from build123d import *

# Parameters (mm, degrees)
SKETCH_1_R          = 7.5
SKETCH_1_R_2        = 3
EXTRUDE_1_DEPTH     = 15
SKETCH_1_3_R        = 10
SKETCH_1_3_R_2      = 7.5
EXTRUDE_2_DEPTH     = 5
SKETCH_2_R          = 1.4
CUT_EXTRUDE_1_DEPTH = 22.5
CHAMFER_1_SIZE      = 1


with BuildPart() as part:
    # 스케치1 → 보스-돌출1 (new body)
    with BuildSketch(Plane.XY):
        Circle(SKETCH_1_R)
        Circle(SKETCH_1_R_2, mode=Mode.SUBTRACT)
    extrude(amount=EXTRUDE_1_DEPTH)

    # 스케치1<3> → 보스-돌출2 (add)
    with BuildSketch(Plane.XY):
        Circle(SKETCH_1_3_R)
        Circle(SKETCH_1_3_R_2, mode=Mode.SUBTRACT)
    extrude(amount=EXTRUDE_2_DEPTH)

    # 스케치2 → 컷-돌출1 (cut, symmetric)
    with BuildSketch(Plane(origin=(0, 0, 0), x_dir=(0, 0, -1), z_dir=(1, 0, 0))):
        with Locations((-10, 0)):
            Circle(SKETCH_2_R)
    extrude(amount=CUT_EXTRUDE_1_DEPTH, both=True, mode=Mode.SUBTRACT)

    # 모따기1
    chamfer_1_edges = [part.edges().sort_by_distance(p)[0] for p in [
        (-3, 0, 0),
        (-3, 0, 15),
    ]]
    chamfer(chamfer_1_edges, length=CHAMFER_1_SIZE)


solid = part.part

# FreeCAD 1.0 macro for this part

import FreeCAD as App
import Part
import Sketcher


def edges_at(feature, points):
    """Names of the edges that pass closest to the given points."""
    edges = feature.Shape.Edges
    near = lambda p: min(range(len(edges)), key=lambda i: edges[i].distToShape(Part.Vertex(*p))[0])
    return sorted({f"Edge{near(p) + 1}" for p in points})

doc = App.newDocument("Part")
body = doc.addObject("PartDesign::Body", "Body")

sketch1 = body.newObject("Sketcher::SketchObject", "Sketch")
sketch1.AttachmentSupport = (doc.getObject("XY_Plane"), [""])
sketch1.MapMode = "FlatFace"
sketch1.addGeometry([
    Part.Circle(App.Vector(0, 0, 0), App.Vector(0, 0, 1), 7.5),
    Part.Circle(App.Vector(0, 0, 0), App.Vector(0, 0, 1), 3),
], False)
sketch1.addConstraint([
    Sketcher.Constraint("Coincident", 0, 3, -1, 1),
    Sketcher.Constraint("Coincident", 1, 3, -1, 1),
    Sketcher.Constraint("Diameter", 0, 15.0),
    Sketcher.Constraint("Diameter", 1, 6.0),
])
pad1 = body.newObject("PartDesign::Pad", "Pad")
pad1.Profile = sketch1
pad1.Length = 15

sketch2 = body.newObject("Sketcher::SketchObject", "Sketch001")
sketch2.AttachmentSupport = (doc.getObject("XY_Plane"), [""])
sketch2.MapMode = "FlatFace"
sketch2.addGeometry([
    Part.Circle(App.Vector(0, 0, 0), App.Vector(0, 0, 1), 10),
    Part.Circle(App.Vector(0, 0, 0), App.Vector(0, 0, 1), 7.5),
], False)
sketch2.addConstraint([
    Sketcher.Constraint("Coincident", 0, 3, -1, 1),
    Sketcher.Constraint("Coincident", 1, 3, -1, 1),
    Sketcher.Constraint("Diameter", 0, 20.0),
    Sketcher.Constraint("Diameter", 1, 15.0),
])
pad2 = body.newObject("PartDesign::Pad", "Pad001")
pad2.Profile = sketch2
pad2.Length = 5

sketch3 = body.newObject("Sketcher::SketchObject", "Sketch002")
sketch3.AttachmentSupport = (doc.getObject("YZ_Plane"), [""])
sketch3.MapMode = "FlatFace"
sketch3.addGeometry(Part.Circle(App.Vector(0, 10, 0), App.Vector(0, 0, 1), 1.4), False)
sketch3.addConstraint([
    Sketcher.Constraint("PointOnObject", 0, 3, -2),
    Sketcher.Constraint("Diameter", 0, 2.8),
    Sketcher.Constraint("DistanceY", -1, 1, 0, 3, 10.0),
])
pocket1 = body.newObject("PartDesign::Pocket", "Pocket")
pocket1.Profile = sketch3
pocket1.Length = 45
pocket1.Midplane = True
doc.recompute()

chamfer = body.newObject("PartDesign::Chamfer", "Chamfer")
chamfer.Base = (pocket1, edges_at(pocket1, [(-3, 0, 0), (-3, 0, 15)]))
chamfer.Size = 1

doc.recompute()
